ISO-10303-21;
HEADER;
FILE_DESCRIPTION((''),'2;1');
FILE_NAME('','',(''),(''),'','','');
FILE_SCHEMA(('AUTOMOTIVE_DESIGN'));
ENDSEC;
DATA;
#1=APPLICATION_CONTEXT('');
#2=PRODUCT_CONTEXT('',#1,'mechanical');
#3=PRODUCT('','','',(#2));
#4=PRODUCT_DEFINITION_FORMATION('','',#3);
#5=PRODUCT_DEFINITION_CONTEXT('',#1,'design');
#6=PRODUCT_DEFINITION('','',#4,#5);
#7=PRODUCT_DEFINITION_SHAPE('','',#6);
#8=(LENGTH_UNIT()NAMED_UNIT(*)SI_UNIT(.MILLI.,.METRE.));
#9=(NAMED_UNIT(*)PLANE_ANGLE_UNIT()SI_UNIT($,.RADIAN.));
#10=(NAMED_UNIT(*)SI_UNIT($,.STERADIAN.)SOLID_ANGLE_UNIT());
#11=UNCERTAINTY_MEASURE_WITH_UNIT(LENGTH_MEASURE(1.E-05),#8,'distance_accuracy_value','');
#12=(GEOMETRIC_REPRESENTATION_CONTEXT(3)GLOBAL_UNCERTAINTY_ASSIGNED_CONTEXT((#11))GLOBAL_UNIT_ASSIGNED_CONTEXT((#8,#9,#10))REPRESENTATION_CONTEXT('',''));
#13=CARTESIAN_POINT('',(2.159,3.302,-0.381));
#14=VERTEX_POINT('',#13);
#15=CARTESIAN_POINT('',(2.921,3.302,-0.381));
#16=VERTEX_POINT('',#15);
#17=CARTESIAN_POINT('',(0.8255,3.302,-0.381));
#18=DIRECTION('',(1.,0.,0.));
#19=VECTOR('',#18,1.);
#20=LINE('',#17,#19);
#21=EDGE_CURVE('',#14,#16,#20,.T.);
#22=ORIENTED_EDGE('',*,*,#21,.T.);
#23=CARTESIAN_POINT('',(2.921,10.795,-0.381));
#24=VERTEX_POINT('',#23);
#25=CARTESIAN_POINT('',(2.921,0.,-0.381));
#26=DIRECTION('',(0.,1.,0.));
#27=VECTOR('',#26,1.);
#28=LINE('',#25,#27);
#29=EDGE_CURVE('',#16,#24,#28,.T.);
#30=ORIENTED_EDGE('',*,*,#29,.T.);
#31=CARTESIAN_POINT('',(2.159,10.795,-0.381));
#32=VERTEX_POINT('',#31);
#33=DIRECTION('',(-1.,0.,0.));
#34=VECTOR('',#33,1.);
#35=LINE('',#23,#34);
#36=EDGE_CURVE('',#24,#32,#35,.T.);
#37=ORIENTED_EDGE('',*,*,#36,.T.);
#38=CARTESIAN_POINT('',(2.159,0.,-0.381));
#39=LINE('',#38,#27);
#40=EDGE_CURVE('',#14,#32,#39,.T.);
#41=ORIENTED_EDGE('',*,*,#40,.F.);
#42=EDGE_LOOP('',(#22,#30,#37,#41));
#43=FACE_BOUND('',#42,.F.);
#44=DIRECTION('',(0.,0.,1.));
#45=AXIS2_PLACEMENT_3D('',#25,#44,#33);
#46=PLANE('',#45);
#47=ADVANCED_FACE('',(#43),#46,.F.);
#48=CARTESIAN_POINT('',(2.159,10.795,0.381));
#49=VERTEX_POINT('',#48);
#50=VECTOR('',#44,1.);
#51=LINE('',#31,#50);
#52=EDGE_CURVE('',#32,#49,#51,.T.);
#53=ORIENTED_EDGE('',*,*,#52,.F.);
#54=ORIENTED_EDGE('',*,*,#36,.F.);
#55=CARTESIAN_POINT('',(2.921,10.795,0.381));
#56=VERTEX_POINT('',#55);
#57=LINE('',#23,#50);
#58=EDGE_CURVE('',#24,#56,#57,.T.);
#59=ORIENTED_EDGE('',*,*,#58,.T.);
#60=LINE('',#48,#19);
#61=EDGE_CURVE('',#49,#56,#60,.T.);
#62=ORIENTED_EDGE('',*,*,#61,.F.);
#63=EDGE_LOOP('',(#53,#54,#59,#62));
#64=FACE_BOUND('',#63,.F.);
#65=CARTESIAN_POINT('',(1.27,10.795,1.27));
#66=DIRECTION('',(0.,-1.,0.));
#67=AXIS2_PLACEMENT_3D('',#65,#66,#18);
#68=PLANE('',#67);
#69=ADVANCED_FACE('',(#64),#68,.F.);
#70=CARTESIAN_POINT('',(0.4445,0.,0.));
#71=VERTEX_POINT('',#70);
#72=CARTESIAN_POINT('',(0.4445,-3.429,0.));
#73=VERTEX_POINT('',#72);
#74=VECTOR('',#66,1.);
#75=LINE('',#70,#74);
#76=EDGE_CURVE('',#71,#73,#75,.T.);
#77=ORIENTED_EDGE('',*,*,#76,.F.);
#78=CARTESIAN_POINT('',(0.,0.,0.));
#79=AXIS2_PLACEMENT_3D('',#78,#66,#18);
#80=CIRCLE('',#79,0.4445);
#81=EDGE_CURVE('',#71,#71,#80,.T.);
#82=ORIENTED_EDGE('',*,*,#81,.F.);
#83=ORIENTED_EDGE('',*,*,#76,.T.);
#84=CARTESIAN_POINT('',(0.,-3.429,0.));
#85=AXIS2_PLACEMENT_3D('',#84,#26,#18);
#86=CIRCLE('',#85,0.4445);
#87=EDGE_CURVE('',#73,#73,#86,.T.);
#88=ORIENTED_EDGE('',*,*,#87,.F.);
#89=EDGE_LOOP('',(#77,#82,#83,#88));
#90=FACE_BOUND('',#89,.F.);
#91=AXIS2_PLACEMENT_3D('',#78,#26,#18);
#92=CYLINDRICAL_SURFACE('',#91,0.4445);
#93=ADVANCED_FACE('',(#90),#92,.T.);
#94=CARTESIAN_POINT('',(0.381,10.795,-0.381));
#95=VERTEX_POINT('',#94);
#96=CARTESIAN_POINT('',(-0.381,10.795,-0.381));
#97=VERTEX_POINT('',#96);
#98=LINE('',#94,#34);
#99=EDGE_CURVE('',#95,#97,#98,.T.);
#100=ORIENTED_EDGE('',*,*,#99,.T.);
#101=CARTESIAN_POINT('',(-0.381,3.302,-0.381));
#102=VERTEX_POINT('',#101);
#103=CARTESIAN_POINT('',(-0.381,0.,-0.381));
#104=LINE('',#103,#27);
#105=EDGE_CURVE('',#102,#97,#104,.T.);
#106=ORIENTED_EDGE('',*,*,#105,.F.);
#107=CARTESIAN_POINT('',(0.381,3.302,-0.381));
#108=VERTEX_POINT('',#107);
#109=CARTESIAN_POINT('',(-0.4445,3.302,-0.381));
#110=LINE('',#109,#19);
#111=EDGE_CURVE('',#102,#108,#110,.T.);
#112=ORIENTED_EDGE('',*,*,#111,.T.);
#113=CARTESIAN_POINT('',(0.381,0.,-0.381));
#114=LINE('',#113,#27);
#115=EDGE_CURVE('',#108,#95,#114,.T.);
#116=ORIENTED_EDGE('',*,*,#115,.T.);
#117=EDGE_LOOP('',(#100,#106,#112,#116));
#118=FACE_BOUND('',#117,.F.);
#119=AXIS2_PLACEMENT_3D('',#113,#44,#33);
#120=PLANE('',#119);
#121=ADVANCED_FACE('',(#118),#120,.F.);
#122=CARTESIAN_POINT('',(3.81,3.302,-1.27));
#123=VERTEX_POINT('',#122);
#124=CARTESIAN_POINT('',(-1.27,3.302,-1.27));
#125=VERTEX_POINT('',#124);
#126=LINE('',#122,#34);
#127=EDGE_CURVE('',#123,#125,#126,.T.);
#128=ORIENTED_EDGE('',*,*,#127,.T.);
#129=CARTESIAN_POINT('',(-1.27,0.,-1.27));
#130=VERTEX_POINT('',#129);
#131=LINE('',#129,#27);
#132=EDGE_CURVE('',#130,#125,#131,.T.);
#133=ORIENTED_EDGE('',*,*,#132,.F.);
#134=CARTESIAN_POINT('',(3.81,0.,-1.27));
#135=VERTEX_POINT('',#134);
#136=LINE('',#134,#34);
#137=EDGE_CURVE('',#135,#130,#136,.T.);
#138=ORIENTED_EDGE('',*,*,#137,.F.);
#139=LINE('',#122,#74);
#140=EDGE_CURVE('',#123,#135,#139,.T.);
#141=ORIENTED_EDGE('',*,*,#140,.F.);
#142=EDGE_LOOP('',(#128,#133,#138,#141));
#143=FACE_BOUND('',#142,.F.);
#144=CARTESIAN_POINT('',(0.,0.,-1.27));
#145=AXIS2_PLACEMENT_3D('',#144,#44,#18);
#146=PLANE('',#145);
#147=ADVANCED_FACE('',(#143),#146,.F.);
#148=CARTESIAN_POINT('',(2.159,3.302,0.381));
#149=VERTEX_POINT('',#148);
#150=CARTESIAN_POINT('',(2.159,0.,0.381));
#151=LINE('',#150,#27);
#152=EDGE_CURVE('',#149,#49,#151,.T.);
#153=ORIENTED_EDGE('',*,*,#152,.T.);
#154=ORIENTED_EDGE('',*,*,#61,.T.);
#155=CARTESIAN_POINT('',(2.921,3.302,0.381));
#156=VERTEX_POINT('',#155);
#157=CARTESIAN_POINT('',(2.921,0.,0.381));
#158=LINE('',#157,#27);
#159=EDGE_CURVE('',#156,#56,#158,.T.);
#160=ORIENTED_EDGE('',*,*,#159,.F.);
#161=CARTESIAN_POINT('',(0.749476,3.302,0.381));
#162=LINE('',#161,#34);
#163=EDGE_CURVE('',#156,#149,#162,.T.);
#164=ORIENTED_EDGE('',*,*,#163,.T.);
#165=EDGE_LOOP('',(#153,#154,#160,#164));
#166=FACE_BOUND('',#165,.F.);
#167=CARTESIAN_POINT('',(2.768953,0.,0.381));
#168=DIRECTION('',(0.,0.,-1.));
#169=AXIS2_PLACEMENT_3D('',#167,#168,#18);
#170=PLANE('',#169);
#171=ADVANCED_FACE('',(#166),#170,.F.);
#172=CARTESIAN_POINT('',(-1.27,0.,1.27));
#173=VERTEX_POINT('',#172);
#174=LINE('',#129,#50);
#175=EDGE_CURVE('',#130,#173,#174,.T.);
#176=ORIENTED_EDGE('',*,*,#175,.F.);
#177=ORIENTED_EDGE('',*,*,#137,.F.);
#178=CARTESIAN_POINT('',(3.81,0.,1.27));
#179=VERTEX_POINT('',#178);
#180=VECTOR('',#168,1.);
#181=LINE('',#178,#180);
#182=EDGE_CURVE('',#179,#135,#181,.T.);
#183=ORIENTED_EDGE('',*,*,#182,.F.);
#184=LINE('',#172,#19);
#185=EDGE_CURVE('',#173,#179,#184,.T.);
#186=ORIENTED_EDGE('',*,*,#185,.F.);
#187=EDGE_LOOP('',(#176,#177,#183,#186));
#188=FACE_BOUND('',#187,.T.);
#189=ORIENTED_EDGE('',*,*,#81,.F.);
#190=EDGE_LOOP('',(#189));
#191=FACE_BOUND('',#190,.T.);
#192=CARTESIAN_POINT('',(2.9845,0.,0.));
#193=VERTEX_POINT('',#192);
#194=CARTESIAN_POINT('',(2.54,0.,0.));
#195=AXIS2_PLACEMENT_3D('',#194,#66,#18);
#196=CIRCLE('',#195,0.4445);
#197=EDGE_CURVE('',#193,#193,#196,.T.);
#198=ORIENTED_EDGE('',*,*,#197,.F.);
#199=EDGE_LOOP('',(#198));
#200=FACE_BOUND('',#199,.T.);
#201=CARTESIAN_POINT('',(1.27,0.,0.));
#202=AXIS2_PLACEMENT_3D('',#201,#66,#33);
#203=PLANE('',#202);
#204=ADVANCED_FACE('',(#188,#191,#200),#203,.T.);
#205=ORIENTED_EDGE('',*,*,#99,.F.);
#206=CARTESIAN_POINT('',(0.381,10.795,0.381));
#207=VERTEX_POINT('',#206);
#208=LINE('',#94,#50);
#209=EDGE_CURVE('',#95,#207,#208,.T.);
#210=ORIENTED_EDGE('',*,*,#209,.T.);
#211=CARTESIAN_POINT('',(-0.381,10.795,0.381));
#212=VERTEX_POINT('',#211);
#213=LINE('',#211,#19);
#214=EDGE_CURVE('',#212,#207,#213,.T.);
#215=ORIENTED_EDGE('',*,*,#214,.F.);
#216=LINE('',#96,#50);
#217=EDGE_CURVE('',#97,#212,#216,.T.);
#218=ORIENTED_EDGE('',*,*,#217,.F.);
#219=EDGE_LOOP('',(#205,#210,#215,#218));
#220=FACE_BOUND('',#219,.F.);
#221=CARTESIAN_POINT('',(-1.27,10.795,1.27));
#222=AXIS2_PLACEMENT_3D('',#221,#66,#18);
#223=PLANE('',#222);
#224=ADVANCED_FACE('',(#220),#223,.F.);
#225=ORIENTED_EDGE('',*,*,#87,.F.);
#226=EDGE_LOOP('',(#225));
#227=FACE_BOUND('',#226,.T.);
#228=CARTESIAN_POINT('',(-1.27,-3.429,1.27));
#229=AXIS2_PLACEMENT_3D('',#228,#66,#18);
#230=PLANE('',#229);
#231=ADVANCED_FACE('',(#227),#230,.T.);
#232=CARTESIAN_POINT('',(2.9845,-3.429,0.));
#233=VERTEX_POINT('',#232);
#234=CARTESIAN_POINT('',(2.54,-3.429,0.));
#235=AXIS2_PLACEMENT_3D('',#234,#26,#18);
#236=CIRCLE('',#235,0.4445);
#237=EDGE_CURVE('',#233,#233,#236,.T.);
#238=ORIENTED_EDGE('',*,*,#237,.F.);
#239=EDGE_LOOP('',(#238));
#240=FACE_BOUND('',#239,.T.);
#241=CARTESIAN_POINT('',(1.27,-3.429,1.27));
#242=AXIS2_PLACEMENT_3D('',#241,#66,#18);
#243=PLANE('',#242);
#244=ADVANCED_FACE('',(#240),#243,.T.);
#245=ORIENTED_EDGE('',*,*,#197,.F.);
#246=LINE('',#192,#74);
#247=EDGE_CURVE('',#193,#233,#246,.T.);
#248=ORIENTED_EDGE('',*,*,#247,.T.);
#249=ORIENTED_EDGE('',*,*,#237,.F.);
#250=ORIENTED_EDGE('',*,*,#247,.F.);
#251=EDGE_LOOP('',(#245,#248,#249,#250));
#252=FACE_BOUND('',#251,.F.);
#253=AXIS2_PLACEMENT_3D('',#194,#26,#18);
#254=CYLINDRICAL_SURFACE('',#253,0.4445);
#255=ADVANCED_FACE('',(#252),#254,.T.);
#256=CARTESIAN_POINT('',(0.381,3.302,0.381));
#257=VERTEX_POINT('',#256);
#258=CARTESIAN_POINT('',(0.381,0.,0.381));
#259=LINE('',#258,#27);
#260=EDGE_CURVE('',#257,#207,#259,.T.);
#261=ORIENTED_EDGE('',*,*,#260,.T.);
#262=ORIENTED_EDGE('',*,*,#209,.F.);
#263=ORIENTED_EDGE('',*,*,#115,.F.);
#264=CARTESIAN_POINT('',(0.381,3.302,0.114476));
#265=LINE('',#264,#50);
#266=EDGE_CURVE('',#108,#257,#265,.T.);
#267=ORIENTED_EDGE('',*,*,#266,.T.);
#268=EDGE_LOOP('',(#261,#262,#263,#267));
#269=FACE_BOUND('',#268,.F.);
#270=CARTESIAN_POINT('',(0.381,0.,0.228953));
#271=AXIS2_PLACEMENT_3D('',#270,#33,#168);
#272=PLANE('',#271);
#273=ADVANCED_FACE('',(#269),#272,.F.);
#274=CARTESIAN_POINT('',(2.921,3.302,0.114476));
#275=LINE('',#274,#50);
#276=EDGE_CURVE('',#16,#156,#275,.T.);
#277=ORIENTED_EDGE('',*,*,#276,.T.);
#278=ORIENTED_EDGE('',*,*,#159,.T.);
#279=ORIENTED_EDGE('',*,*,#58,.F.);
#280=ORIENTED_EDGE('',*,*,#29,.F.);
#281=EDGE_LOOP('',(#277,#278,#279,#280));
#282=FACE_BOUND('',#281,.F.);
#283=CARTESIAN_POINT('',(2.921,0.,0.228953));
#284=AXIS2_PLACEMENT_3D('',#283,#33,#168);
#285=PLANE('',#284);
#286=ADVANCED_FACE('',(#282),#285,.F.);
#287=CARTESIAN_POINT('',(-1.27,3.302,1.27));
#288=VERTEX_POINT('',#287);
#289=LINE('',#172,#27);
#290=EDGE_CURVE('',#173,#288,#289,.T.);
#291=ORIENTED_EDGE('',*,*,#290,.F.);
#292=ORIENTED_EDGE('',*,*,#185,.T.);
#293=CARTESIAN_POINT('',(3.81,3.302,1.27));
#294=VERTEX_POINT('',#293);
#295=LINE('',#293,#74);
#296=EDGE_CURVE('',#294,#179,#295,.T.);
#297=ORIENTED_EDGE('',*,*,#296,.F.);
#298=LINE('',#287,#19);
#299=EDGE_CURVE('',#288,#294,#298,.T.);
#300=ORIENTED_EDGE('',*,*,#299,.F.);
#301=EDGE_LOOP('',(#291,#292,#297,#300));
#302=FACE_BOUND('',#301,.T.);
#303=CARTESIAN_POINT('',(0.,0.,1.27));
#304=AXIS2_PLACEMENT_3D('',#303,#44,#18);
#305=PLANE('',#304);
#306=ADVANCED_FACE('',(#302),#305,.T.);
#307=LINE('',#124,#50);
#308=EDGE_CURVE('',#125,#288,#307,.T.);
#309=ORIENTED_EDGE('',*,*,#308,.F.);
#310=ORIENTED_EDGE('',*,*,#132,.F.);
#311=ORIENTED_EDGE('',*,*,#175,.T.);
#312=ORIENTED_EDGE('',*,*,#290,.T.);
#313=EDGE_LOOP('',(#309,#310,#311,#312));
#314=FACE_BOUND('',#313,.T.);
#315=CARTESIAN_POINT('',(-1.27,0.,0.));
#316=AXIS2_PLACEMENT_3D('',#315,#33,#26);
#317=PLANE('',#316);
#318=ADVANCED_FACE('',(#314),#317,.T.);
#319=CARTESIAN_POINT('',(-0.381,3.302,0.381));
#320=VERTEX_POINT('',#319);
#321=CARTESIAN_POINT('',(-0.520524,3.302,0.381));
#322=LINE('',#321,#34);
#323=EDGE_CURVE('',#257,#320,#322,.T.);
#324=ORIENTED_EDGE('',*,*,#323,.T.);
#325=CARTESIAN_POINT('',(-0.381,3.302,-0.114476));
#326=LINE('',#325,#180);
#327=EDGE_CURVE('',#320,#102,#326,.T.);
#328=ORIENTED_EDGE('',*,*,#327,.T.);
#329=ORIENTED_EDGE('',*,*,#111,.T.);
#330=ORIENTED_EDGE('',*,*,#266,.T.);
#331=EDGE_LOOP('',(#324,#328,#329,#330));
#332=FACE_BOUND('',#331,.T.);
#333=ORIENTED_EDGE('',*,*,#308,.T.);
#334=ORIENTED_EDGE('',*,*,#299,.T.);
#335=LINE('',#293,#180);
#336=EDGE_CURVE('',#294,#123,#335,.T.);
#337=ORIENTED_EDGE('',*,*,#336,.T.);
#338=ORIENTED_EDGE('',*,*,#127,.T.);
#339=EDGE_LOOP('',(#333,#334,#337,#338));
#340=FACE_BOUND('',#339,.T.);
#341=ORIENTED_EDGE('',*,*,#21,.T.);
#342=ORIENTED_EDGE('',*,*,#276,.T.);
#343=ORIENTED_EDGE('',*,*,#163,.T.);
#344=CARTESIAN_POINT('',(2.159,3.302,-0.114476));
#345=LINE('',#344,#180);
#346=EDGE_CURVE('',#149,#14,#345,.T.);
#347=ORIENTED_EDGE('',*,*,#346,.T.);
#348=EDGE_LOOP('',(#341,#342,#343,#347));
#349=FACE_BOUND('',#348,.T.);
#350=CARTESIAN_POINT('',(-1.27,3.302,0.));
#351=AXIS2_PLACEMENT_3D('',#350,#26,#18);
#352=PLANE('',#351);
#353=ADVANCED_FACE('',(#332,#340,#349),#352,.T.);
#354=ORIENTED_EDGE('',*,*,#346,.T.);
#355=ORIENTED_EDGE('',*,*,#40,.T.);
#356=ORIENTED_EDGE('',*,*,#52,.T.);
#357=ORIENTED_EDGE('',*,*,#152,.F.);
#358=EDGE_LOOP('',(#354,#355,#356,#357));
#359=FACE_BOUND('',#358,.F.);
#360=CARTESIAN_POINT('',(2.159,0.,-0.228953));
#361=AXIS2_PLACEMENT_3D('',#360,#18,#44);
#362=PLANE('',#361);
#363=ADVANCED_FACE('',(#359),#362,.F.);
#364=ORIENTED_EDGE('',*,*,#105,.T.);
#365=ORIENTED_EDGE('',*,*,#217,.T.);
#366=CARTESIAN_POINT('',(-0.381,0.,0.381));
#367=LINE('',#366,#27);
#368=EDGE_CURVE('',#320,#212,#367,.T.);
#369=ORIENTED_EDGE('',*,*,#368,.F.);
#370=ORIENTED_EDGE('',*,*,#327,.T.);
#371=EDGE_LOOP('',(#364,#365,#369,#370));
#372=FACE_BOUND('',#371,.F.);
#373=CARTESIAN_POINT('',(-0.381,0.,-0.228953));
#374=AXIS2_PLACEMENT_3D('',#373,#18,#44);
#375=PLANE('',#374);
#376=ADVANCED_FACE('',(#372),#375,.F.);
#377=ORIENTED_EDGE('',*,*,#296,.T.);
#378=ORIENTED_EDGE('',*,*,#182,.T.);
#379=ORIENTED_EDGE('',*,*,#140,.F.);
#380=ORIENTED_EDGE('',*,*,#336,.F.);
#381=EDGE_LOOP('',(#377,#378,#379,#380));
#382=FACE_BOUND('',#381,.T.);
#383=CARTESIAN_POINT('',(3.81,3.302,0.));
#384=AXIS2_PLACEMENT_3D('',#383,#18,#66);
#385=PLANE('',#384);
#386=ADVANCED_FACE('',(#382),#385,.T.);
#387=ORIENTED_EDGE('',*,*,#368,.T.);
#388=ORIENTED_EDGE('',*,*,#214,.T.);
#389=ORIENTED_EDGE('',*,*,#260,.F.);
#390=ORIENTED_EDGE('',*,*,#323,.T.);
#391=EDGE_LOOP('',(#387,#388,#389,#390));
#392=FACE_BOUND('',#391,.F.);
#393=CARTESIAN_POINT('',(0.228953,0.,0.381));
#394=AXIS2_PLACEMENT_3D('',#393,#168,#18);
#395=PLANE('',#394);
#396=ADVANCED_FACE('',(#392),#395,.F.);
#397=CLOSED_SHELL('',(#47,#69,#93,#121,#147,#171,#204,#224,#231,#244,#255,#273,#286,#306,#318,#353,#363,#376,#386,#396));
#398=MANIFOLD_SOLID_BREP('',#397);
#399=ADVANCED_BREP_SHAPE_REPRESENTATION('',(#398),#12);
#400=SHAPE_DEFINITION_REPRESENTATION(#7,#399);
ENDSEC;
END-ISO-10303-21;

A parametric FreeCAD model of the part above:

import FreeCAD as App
import Part
import Sketcher
Q = App.Units.Quantity

doc = App.newDocument("Part")
body = doc.addObject("PartDesign::Body", "Body")

# Sketch on XY plane
sketch1 = body.newObject("Sketcher::SketchObject", "Sketch")
sketch1.AttachmentSupport = (doc.getObject("XY_Plane"), [""])
sketch1.MapMode = "FlatFace"
sketch1.addGeometry(Part.LineSegment(App.Vector(1.3, 3.3, 0), App.Vector(-1.3, 3.3, 0)), False)
sketch1.addGeometry(Part.LineSegment(App.Vector(-1.3, 3.3, 0), App.Vector(-1.3, 0, 0)), False)
sketch1.addGeometry(Part.LineSegment(App.Vector(-1.3, 0, 0), App.Vector(1.3, 0, 0)), False)
sketch1.addGeometry(Part.LineSegment(App.Vector(1.3, 0, 0), App.Vector(1.3, 3.3, 0)), False)
sketch1.addConstraint(Sketcher.Constraint("Coincident", 0, 2, 1, 1))
sketch1.addConstraint(Sketcher.Constraint("Coincident", 1, 2, 2, 1))
sketch1.addConstraint(Sketcher.Constraint("Coincident", 2, 2, 3, 1))
sketch1.addConstraint(Sketcher.Constraint("Coincident", 3, 2, 0, 1))
sketch1.addConstraint(Sketcher.Constraint("Horizontal", 0))
sketch1.addConstraint(Sketcher.Constraint("Vertical", 1))
sketch1.addConstraint(Sketcher.Constraint("Horizontal", 2))
sketch1.addConstraint(Sketcher.Constraint("Vertical", 3))
sketch1.addConstraint(Sketcher.Constraint("Symmetric", 1, 2, 2, 2, -1, 1))
sketch1.addConstraint(Sketcher.Constraint("DistanceX", 0, 2, 0, 1, Q("0.1 in")))
sketch1.addConstraint(Sketcher.Constraint("DistanceY", 1, 2, 1, 1, Q("0.13 in")))
pad1 = body.newObject("PartDesign::Pad", "Pad")
pad1.Profile = sketch1
pad1.Length = Q("0.1 in")
pad1.Midplane = True

# Sketch on XZ plane
sketch2 = body.newObject("Sketcher::SketchObject", "Sketch001")
sketch2.AttachmentSupport = (doc.getObject("XZ_Plane"), [""])
sketch2.MapMode = "FlatFace"
sketch2.addGeometry(Part.LineSegment(App.Vector(0.4, 0.4, 0), App.Vector(-0.4, 0.4, 0)), False)
sketch2.addGeometry(Part.LineSegment(App.Vector(-0.4, 0.4, 0), App.Vector(-0.4, -0.4, 0)), False)
sketch2.addGeometry(Part.LineSegment(App.Vector(-0.4, -0.4, 0), App.Vector(0.4, -0.4, 0)), False)
sketch2.addGeometry(Part.LineSegment(App.Vector(0.4, -0.4, 0), App.Vector(0.4, 0.4, 0)), False)
sketch2.addConstraint(Sketcher.Constraint("Coincident", 0, 2, 1, 1))
sketch2.addConstraint(Sketcher.Constraint("Coincident", 1, 2, 2, 1))
sketch2.addConstraint(Sketcher.Constraint("Coincident", 2, 2, 3, 1))
sketch2.addConstraint(Sketcher.Constraint("Coincident", 3, 2, 0, 1))
sketch2.addConstraint(Sketcher.Constraint("Horizontal", 0))
sketch2.addConstraint(Sketcher.Constraint("Vertical", 1))
sketch2.addConstraint(Sketcher.Constraint("Horizontal", 2))
sketch2.addConstraint(Sketcher.Constraint("Vertical", 3))
sketch2.addConstraint(Sketcher.Constraint("Symmetric", 0, 2, 2, 2, -1, 1))
sketch2.addConstraint(Sketcher.Constraint("Equal", 2, 1))
sketch2.addConstraint(Sketcher.Constraint("DistanceX", 0, 2, 0, 1, Q("0.03 in")))
pad2 = body.newObject("PartDesign::Pad", "Pad001")
pad2.Profile = sketch2
pad2.Length = Q("0.425 in")
pad2.Reversed = True

# Sketch on XZ plane
sketch3 = body.newObject("Sketcher::SketchObject", "Sketch002")
sketch3.AttachmentSupport = (doc.getObject("XZ_Plane"), [""])
sketch3.MapMode = "FlatFace"
sketch3.addGeometry(Part.Circle(App.Vector(0, 0, 0), App.Vector(0, 0, 1), 0.44), False)
sketch3.addConstraint(Sketcher.Constraint("Coincident", 0, 3, -1, 1))
sketch3.addConstraint(Sketcher.Constraint("Diameter", 0, Q("0.035 in")))
pad3 = body.newObject("PartDesign::Pad", "Pad002")
pad3.Profile = sketch3
pad3.Length = Q("0.135 in")
doc.recompute()

linearpattern = body.newObject("PartDesign::LinearPattern", "LinearPattern")
linearpattern.Originals = [pad1, pad2, pad3]
linearpattern.Direction = (doc.getObject("X_Axis"), [""])
linearpattern.Mode = "offset"
linearpattern.Offset = Q("0.1 in")
linearpattern.Occurrences = 2
body.Tip = linearpattern

doc.recompute()
